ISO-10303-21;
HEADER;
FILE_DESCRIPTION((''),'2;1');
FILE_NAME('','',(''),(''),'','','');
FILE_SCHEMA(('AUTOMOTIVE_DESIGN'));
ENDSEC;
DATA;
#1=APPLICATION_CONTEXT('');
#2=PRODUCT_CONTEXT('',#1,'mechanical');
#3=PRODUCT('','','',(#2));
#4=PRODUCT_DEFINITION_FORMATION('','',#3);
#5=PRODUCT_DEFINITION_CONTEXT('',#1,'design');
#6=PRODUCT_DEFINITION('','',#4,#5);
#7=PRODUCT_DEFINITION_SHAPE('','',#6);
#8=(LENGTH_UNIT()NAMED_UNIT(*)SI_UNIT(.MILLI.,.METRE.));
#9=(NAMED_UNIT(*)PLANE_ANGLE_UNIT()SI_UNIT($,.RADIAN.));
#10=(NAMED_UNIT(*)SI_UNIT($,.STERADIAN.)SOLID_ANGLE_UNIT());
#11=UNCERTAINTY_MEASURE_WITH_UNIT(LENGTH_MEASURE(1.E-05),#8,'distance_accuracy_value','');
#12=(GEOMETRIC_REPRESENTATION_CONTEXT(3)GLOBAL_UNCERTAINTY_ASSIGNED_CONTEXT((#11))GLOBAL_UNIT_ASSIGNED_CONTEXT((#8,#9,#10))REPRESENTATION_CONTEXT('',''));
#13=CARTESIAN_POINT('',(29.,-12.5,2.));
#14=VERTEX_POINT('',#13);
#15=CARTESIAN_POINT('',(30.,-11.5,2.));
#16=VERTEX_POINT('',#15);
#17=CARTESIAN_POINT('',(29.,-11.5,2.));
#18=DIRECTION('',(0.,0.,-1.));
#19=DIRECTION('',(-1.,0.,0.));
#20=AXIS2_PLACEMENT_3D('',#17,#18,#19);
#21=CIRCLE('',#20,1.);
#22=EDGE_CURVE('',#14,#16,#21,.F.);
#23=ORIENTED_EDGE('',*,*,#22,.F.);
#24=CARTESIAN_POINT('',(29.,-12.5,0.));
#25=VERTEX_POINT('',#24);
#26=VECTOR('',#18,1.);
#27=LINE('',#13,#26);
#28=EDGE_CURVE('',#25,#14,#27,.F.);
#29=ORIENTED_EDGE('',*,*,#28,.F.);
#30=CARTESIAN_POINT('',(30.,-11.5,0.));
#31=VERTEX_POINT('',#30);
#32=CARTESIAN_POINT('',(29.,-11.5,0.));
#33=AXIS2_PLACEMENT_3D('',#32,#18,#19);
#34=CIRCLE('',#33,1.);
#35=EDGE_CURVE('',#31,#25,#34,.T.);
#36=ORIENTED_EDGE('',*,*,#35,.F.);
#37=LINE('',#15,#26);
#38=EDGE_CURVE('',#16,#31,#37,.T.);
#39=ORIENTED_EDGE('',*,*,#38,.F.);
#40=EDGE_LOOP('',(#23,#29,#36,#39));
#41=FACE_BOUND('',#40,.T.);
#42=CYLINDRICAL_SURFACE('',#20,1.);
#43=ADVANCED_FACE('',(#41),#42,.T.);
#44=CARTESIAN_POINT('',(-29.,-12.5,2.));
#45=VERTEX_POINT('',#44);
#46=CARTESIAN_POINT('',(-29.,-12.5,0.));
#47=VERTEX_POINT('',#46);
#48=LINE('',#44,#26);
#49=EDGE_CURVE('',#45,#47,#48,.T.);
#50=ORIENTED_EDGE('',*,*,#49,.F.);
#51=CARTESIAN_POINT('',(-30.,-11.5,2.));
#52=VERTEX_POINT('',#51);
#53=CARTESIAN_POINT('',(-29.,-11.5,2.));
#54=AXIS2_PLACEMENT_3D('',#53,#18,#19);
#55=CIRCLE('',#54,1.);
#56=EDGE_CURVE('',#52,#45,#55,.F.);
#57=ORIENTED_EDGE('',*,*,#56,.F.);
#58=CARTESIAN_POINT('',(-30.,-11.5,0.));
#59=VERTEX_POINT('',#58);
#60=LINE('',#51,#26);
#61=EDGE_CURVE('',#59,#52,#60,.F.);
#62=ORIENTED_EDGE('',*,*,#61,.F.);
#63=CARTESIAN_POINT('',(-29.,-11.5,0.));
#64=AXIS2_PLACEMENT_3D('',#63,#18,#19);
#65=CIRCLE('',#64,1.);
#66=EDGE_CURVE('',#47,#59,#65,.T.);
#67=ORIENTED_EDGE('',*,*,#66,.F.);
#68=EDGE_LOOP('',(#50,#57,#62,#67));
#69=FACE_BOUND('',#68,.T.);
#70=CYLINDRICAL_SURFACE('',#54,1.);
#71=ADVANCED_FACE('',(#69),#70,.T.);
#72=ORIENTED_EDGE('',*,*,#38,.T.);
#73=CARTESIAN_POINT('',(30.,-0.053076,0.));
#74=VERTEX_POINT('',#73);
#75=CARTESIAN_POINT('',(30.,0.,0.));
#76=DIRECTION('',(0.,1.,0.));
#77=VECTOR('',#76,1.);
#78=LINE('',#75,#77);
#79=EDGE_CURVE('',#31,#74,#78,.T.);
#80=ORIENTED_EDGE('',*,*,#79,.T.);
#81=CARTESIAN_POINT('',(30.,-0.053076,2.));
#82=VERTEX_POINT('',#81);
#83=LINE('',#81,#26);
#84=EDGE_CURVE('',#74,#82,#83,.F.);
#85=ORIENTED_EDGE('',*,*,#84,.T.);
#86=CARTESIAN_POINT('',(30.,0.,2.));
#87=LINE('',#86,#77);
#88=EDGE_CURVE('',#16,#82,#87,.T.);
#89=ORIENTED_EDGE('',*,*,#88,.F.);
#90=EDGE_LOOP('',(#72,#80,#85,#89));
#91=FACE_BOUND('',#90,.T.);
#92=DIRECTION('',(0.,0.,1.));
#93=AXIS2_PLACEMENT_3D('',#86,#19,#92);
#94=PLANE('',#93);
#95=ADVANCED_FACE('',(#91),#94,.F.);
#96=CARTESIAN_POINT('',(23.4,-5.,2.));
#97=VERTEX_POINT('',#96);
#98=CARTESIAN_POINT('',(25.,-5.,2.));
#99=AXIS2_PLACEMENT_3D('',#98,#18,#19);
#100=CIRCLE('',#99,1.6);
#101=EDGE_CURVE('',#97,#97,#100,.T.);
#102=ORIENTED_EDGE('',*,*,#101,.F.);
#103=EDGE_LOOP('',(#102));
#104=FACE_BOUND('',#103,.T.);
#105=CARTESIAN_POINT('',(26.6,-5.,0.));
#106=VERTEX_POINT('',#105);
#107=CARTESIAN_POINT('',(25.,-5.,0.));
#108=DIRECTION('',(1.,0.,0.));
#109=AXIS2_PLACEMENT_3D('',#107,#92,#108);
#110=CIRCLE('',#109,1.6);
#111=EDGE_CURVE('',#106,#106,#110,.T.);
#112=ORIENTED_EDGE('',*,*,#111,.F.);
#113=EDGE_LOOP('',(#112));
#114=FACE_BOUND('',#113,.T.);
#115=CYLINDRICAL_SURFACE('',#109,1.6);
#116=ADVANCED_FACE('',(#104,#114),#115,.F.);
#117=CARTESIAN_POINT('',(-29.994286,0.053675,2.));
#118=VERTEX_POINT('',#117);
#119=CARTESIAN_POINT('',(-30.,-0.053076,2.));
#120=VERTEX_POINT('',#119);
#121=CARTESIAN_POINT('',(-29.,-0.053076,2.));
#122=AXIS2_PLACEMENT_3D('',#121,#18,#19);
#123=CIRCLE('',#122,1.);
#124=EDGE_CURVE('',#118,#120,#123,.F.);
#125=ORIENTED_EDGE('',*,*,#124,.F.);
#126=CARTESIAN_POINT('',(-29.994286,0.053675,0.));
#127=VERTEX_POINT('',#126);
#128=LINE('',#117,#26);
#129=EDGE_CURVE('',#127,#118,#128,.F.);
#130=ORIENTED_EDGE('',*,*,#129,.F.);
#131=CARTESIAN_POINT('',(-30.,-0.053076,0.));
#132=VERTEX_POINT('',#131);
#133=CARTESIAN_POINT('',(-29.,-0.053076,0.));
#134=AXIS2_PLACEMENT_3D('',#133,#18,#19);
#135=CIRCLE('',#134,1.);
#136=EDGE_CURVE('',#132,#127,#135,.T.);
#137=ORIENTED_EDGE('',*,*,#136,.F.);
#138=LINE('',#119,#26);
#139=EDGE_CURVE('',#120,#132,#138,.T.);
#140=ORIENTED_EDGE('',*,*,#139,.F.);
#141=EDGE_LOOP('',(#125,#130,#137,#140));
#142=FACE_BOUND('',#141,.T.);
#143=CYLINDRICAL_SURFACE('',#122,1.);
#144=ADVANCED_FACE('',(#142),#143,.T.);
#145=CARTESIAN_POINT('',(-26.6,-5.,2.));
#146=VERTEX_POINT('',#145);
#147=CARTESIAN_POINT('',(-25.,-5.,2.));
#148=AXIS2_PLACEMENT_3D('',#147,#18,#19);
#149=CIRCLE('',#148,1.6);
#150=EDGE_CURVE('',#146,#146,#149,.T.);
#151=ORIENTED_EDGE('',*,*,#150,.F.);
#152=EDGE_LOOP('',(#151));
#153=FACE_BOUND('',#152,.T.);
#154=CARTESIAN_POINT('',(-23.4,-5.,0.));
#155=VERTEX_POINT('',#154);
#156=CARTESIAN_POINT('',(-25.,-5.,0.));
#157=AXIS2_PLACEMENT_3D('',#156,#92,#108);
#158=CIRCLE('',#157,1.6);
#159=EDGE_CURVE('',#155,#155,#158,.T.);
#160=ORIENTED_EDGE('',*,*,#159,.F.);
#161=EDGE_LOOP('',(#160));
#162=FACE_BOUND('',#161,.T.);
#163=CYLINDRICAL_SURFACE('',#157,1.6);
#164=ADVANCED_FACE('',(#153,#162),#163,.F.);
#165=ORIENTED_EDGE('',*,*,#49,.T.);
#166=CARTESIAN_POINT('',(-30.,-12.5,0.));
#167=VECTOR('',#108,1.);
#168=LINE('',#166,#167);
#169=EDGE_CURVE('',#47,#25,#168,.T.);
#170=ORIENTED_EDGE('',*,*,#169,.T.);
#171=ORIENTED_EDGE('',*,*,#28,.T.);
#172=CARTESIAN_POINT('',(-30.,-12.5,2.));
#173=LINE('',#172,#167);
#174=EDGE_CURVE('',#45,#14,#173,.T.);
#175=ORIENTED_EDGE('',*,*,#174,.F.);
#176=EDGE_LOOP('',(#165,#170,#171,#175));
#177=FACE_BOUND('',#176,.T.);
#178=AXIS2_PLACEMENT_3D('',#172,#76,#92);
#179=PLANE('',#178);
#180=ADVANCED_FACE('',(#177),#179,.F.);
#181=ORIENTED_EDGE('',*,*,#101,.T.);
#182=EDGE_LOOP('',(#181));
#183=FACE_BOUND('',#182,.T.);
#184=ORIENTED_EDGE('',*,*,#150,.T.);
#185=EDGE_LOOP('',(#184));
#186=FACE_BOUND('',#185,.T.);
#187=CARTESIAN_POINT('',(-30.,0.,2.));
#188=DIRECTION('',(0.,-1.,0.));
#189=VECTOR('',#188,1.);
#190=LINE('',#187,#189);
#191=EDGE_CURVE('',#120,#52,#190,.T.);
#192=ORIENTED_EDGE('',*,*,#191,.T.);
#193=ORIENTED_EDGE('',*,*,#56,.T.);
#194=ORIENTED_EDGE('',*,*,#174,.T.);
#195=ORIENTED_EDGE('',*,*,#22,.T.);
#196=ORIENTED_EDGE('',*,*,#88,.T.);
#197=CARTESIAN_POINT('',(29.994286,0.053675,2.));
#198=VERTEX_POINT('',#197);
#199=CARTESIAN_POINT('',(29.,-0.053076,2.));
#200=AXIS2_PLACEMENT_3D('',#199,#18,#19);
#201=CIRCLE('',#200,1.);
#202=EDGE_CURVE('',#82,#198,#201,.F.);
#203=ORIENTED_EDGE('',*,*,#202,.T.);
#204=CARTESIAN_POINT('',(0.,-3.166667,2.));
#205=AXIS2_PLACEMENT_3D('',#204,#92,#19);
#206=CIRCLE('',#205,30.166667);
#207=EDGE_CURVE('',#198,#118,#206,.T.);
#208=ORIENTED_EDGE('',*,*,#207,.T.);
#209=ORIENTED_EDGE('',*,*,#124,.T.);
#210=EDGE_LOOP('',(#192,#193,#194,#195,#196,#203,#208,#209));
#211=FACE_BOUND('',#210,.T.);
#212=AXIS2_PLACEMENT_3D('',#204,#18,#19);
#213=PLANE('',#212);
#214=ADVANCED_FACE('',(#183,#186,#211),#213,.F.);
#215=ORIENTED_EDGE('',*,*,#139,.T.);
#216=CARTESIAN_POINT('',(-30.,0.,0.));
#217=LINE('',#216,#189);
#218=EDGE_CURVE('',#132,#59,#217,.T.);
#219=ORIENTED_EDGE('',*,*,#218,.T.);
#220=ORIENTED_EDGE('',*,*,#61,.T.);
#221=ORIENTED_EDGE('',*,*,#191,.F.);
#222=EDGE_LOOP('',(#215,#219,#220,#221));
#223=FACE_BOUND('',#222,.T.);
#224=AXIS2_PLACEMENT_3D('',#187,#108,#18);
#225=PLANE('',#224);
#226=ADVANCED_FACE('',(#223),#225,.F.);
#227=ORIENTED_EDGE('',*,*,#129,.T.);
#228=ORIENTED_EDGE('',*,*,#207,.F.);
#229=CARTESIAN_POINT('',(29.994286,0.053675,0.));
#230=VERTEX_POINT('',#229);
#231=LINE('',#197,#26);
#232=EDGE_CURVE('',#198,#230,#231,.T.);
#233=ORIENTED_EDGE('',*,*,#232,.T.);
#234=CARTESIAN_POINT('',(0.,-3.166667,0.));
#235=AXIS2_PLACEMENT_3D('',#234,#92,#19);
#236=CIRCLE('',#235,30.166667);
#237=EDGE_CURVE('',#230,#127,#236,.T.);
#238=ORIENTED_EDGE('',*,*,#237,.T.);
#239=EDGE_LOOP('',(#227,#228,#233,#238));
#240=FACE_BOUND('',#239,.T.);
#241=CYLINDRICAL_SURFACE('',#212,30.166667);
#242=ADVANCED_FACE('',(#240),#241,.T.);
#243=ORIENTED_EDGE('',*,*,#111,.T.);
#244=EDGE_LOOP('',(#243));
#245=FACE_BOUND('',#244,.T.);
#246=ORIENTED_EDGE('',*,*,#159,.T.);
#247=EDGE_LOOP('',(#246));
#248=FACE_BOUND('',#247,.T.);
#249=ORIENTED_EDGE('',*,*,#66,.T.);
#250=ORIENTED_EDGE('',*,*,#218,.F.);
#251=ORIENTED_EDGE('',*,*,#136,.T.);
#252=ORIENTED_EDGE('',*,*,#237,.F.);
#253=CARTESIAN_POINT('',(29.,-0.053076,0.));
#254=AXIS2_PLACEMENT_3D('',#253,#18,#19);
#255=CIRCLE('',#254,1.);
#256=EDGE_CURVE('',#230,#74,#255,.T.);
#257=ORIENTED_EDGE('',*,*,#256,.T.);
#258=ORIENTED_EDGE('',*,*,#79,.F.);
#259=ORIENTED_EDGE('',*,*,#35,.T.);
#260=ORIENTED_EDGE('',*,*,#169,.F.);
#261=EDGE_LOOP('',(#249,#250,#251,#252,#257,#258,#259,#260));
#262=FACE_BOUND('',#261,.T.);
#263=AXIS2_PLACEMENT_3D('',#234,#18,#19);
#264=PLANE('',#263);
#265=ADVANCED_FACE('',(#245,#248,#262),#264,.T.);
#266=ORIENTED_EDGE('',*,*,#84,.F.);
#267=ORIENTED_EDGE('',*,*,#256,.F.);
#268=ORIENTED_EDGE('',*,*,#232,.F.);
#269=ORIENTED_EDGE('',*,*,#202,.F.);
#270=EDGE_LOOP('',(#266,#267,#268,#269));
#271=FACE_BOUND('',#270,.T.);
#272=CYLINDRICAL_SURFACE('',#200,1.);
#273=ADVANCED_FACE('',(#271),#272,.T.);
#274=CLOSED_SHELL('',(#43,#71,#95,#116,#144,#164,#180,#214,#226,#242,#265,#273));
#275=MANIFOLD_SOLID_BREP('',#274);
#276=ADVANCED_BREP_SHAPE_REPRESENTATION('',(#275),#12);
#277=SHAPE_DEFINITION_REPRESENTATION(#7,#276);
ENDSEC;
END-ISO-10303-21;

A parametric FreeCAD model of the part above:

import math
import FreeCAD as App
import Part
import Sketcher


def edges_at(feature, points):
    """Names of the edges that pass closest to the given points."""
    edges = feature.Shape.Edges
    near = lambda p: min(range(len(edges)), key=lambda i: edges[i].distToShape(Part.Vertex(*p))[0])
    return sorted({f"Edge{near(p) + 1}" for p in points})

doc = App.newDocument("Part")
body = doc.addObject("PartDesign::Body", "Body")

# Sketch on XY plane
sketch1 = body.newObject("Sketcher::SketchObject", "Sketch")
sketch1.AttachmentSupport = (doc.getObject("XY_Plane"), [""])
sketch1.MapMode = "FlatFace"
sketch1.addGeometry(Part.LineSegment(App.Vector(-30, 0, 0), App.Vector(-30, -12, 0)), False)
sketch1.addGeometry(Part.LineSegment(App.Vector(-30, -12, 0), App.Vector(30, -12, 0)), False)
sketch1.addGeometry(Part.LineSegment(App.Vector(30, -12, 0), App.Vector(30, 0, 0)), False)
sketch1.addGeometry(Part.ArcOfCircle(Part.Circle(App.Vector(0, -3, 0), App.Vector(0, 0, 1), 30), math.radians(6), math.radians(174)), False)
sketch1.addConstraint(Sketcher.Constraint("Coincident", 0, 2, 1, 1))
sketch1.addConstraint(Sketcher.Constraint("Coincident", 1, 2, 2, 1))
sketch1.addConstraint(Sketcher.Constraint("Coincident", 2, 2, 3, 1))
sketch1.addConstraint(Sketcher.Constraint("Coincident", 3, 2, 0, 1))
sketch1.addConstraint(Sketcher.Constraint("Vertical", 0))
sketch1.addConstraint(Sketcher.Constraint("Horizontal", 1))
sketch1.addConstraint(Sketcher.Constraint("Vertical", 2))
sketch1.addConstraint(Sketcher.Constraint("Symmetric", 2, 2, 3, 2, -1, 1))
sketch1.addConstraint(Sketcher.Constraint("PointOnObject", 3, 3, -2))
sketch1.addConstraint(Sketcher.Constraint("DistanceX", 1, 1, 1, 2, 60.0))
sketch1.addConstraint(Sketcher.Constraint("DistanceY", 0, 2, 0, 1, 12.5))
sketch1.addConstraint(Sketcher.Constraint("Radius", 3, 30.166667))
pad1 = body.newObject("PartDesign::Pad", "Pad")
pad1.Profile = sketch1
pad1.Length = 2

# Sketch on XY plane
sketch2 = body.newObject("Sketcher::SketchObject", "Sketch001")
sketch2.AttachmentSupport = (doc.getObject("XY_Plane"), [""])
sketch2.MapMode = "FlatFace"
sketch2.AttachmentOffset = App.Placement(App.Vector(0, 0, 2), App.Rotation())
sketch2.addGeometry(Part.Circle(App.Vector(-25, -5, 0), App.Vector(0, 0, 1), 1.6), False)
sketch2.addGeometry(Part.Circle(App.Vector(25, -5, 0), App.Vector(0, 0, 1), 1.6), False)
sketch2.addConstraint(Sketcher.Constraint("Equal", 0, 1))
sketch2.addConstraint(Sketcher.Constraint("Symmetric", 0, 3, 1, 3, -2))
sketch2.addConstraint(Sketcher.Constraint("Diameter", 0, 3.2))
sketch2.addConstraint(Sketcher.Constraint("DistanceX", 0, 3, -1, 1, 25.0))
sketch2.addConstraint(Sketcher.Constraint("DistanceY", 0, 3, -1, 1, 5.0))
pocket1 = body.newObject("PartDesign::Pocket", "Pocket")
pocket1.Profile = sketch2
pocket1.Type = "ThroughAll"
pocket1.Midplane = True
doc.recompute()

fillet = body.newObject("PartDesign::Fillet", "Fillet")
fillet.Base = (pocket1, edges_at(pocket1, [
    (30, 0, 1),
    (30, -12.5, 1),
    (-30, -12.5, 1),
    (-30, 0, 1),
]))
fillet.Radius = 1

doc.recompute()
